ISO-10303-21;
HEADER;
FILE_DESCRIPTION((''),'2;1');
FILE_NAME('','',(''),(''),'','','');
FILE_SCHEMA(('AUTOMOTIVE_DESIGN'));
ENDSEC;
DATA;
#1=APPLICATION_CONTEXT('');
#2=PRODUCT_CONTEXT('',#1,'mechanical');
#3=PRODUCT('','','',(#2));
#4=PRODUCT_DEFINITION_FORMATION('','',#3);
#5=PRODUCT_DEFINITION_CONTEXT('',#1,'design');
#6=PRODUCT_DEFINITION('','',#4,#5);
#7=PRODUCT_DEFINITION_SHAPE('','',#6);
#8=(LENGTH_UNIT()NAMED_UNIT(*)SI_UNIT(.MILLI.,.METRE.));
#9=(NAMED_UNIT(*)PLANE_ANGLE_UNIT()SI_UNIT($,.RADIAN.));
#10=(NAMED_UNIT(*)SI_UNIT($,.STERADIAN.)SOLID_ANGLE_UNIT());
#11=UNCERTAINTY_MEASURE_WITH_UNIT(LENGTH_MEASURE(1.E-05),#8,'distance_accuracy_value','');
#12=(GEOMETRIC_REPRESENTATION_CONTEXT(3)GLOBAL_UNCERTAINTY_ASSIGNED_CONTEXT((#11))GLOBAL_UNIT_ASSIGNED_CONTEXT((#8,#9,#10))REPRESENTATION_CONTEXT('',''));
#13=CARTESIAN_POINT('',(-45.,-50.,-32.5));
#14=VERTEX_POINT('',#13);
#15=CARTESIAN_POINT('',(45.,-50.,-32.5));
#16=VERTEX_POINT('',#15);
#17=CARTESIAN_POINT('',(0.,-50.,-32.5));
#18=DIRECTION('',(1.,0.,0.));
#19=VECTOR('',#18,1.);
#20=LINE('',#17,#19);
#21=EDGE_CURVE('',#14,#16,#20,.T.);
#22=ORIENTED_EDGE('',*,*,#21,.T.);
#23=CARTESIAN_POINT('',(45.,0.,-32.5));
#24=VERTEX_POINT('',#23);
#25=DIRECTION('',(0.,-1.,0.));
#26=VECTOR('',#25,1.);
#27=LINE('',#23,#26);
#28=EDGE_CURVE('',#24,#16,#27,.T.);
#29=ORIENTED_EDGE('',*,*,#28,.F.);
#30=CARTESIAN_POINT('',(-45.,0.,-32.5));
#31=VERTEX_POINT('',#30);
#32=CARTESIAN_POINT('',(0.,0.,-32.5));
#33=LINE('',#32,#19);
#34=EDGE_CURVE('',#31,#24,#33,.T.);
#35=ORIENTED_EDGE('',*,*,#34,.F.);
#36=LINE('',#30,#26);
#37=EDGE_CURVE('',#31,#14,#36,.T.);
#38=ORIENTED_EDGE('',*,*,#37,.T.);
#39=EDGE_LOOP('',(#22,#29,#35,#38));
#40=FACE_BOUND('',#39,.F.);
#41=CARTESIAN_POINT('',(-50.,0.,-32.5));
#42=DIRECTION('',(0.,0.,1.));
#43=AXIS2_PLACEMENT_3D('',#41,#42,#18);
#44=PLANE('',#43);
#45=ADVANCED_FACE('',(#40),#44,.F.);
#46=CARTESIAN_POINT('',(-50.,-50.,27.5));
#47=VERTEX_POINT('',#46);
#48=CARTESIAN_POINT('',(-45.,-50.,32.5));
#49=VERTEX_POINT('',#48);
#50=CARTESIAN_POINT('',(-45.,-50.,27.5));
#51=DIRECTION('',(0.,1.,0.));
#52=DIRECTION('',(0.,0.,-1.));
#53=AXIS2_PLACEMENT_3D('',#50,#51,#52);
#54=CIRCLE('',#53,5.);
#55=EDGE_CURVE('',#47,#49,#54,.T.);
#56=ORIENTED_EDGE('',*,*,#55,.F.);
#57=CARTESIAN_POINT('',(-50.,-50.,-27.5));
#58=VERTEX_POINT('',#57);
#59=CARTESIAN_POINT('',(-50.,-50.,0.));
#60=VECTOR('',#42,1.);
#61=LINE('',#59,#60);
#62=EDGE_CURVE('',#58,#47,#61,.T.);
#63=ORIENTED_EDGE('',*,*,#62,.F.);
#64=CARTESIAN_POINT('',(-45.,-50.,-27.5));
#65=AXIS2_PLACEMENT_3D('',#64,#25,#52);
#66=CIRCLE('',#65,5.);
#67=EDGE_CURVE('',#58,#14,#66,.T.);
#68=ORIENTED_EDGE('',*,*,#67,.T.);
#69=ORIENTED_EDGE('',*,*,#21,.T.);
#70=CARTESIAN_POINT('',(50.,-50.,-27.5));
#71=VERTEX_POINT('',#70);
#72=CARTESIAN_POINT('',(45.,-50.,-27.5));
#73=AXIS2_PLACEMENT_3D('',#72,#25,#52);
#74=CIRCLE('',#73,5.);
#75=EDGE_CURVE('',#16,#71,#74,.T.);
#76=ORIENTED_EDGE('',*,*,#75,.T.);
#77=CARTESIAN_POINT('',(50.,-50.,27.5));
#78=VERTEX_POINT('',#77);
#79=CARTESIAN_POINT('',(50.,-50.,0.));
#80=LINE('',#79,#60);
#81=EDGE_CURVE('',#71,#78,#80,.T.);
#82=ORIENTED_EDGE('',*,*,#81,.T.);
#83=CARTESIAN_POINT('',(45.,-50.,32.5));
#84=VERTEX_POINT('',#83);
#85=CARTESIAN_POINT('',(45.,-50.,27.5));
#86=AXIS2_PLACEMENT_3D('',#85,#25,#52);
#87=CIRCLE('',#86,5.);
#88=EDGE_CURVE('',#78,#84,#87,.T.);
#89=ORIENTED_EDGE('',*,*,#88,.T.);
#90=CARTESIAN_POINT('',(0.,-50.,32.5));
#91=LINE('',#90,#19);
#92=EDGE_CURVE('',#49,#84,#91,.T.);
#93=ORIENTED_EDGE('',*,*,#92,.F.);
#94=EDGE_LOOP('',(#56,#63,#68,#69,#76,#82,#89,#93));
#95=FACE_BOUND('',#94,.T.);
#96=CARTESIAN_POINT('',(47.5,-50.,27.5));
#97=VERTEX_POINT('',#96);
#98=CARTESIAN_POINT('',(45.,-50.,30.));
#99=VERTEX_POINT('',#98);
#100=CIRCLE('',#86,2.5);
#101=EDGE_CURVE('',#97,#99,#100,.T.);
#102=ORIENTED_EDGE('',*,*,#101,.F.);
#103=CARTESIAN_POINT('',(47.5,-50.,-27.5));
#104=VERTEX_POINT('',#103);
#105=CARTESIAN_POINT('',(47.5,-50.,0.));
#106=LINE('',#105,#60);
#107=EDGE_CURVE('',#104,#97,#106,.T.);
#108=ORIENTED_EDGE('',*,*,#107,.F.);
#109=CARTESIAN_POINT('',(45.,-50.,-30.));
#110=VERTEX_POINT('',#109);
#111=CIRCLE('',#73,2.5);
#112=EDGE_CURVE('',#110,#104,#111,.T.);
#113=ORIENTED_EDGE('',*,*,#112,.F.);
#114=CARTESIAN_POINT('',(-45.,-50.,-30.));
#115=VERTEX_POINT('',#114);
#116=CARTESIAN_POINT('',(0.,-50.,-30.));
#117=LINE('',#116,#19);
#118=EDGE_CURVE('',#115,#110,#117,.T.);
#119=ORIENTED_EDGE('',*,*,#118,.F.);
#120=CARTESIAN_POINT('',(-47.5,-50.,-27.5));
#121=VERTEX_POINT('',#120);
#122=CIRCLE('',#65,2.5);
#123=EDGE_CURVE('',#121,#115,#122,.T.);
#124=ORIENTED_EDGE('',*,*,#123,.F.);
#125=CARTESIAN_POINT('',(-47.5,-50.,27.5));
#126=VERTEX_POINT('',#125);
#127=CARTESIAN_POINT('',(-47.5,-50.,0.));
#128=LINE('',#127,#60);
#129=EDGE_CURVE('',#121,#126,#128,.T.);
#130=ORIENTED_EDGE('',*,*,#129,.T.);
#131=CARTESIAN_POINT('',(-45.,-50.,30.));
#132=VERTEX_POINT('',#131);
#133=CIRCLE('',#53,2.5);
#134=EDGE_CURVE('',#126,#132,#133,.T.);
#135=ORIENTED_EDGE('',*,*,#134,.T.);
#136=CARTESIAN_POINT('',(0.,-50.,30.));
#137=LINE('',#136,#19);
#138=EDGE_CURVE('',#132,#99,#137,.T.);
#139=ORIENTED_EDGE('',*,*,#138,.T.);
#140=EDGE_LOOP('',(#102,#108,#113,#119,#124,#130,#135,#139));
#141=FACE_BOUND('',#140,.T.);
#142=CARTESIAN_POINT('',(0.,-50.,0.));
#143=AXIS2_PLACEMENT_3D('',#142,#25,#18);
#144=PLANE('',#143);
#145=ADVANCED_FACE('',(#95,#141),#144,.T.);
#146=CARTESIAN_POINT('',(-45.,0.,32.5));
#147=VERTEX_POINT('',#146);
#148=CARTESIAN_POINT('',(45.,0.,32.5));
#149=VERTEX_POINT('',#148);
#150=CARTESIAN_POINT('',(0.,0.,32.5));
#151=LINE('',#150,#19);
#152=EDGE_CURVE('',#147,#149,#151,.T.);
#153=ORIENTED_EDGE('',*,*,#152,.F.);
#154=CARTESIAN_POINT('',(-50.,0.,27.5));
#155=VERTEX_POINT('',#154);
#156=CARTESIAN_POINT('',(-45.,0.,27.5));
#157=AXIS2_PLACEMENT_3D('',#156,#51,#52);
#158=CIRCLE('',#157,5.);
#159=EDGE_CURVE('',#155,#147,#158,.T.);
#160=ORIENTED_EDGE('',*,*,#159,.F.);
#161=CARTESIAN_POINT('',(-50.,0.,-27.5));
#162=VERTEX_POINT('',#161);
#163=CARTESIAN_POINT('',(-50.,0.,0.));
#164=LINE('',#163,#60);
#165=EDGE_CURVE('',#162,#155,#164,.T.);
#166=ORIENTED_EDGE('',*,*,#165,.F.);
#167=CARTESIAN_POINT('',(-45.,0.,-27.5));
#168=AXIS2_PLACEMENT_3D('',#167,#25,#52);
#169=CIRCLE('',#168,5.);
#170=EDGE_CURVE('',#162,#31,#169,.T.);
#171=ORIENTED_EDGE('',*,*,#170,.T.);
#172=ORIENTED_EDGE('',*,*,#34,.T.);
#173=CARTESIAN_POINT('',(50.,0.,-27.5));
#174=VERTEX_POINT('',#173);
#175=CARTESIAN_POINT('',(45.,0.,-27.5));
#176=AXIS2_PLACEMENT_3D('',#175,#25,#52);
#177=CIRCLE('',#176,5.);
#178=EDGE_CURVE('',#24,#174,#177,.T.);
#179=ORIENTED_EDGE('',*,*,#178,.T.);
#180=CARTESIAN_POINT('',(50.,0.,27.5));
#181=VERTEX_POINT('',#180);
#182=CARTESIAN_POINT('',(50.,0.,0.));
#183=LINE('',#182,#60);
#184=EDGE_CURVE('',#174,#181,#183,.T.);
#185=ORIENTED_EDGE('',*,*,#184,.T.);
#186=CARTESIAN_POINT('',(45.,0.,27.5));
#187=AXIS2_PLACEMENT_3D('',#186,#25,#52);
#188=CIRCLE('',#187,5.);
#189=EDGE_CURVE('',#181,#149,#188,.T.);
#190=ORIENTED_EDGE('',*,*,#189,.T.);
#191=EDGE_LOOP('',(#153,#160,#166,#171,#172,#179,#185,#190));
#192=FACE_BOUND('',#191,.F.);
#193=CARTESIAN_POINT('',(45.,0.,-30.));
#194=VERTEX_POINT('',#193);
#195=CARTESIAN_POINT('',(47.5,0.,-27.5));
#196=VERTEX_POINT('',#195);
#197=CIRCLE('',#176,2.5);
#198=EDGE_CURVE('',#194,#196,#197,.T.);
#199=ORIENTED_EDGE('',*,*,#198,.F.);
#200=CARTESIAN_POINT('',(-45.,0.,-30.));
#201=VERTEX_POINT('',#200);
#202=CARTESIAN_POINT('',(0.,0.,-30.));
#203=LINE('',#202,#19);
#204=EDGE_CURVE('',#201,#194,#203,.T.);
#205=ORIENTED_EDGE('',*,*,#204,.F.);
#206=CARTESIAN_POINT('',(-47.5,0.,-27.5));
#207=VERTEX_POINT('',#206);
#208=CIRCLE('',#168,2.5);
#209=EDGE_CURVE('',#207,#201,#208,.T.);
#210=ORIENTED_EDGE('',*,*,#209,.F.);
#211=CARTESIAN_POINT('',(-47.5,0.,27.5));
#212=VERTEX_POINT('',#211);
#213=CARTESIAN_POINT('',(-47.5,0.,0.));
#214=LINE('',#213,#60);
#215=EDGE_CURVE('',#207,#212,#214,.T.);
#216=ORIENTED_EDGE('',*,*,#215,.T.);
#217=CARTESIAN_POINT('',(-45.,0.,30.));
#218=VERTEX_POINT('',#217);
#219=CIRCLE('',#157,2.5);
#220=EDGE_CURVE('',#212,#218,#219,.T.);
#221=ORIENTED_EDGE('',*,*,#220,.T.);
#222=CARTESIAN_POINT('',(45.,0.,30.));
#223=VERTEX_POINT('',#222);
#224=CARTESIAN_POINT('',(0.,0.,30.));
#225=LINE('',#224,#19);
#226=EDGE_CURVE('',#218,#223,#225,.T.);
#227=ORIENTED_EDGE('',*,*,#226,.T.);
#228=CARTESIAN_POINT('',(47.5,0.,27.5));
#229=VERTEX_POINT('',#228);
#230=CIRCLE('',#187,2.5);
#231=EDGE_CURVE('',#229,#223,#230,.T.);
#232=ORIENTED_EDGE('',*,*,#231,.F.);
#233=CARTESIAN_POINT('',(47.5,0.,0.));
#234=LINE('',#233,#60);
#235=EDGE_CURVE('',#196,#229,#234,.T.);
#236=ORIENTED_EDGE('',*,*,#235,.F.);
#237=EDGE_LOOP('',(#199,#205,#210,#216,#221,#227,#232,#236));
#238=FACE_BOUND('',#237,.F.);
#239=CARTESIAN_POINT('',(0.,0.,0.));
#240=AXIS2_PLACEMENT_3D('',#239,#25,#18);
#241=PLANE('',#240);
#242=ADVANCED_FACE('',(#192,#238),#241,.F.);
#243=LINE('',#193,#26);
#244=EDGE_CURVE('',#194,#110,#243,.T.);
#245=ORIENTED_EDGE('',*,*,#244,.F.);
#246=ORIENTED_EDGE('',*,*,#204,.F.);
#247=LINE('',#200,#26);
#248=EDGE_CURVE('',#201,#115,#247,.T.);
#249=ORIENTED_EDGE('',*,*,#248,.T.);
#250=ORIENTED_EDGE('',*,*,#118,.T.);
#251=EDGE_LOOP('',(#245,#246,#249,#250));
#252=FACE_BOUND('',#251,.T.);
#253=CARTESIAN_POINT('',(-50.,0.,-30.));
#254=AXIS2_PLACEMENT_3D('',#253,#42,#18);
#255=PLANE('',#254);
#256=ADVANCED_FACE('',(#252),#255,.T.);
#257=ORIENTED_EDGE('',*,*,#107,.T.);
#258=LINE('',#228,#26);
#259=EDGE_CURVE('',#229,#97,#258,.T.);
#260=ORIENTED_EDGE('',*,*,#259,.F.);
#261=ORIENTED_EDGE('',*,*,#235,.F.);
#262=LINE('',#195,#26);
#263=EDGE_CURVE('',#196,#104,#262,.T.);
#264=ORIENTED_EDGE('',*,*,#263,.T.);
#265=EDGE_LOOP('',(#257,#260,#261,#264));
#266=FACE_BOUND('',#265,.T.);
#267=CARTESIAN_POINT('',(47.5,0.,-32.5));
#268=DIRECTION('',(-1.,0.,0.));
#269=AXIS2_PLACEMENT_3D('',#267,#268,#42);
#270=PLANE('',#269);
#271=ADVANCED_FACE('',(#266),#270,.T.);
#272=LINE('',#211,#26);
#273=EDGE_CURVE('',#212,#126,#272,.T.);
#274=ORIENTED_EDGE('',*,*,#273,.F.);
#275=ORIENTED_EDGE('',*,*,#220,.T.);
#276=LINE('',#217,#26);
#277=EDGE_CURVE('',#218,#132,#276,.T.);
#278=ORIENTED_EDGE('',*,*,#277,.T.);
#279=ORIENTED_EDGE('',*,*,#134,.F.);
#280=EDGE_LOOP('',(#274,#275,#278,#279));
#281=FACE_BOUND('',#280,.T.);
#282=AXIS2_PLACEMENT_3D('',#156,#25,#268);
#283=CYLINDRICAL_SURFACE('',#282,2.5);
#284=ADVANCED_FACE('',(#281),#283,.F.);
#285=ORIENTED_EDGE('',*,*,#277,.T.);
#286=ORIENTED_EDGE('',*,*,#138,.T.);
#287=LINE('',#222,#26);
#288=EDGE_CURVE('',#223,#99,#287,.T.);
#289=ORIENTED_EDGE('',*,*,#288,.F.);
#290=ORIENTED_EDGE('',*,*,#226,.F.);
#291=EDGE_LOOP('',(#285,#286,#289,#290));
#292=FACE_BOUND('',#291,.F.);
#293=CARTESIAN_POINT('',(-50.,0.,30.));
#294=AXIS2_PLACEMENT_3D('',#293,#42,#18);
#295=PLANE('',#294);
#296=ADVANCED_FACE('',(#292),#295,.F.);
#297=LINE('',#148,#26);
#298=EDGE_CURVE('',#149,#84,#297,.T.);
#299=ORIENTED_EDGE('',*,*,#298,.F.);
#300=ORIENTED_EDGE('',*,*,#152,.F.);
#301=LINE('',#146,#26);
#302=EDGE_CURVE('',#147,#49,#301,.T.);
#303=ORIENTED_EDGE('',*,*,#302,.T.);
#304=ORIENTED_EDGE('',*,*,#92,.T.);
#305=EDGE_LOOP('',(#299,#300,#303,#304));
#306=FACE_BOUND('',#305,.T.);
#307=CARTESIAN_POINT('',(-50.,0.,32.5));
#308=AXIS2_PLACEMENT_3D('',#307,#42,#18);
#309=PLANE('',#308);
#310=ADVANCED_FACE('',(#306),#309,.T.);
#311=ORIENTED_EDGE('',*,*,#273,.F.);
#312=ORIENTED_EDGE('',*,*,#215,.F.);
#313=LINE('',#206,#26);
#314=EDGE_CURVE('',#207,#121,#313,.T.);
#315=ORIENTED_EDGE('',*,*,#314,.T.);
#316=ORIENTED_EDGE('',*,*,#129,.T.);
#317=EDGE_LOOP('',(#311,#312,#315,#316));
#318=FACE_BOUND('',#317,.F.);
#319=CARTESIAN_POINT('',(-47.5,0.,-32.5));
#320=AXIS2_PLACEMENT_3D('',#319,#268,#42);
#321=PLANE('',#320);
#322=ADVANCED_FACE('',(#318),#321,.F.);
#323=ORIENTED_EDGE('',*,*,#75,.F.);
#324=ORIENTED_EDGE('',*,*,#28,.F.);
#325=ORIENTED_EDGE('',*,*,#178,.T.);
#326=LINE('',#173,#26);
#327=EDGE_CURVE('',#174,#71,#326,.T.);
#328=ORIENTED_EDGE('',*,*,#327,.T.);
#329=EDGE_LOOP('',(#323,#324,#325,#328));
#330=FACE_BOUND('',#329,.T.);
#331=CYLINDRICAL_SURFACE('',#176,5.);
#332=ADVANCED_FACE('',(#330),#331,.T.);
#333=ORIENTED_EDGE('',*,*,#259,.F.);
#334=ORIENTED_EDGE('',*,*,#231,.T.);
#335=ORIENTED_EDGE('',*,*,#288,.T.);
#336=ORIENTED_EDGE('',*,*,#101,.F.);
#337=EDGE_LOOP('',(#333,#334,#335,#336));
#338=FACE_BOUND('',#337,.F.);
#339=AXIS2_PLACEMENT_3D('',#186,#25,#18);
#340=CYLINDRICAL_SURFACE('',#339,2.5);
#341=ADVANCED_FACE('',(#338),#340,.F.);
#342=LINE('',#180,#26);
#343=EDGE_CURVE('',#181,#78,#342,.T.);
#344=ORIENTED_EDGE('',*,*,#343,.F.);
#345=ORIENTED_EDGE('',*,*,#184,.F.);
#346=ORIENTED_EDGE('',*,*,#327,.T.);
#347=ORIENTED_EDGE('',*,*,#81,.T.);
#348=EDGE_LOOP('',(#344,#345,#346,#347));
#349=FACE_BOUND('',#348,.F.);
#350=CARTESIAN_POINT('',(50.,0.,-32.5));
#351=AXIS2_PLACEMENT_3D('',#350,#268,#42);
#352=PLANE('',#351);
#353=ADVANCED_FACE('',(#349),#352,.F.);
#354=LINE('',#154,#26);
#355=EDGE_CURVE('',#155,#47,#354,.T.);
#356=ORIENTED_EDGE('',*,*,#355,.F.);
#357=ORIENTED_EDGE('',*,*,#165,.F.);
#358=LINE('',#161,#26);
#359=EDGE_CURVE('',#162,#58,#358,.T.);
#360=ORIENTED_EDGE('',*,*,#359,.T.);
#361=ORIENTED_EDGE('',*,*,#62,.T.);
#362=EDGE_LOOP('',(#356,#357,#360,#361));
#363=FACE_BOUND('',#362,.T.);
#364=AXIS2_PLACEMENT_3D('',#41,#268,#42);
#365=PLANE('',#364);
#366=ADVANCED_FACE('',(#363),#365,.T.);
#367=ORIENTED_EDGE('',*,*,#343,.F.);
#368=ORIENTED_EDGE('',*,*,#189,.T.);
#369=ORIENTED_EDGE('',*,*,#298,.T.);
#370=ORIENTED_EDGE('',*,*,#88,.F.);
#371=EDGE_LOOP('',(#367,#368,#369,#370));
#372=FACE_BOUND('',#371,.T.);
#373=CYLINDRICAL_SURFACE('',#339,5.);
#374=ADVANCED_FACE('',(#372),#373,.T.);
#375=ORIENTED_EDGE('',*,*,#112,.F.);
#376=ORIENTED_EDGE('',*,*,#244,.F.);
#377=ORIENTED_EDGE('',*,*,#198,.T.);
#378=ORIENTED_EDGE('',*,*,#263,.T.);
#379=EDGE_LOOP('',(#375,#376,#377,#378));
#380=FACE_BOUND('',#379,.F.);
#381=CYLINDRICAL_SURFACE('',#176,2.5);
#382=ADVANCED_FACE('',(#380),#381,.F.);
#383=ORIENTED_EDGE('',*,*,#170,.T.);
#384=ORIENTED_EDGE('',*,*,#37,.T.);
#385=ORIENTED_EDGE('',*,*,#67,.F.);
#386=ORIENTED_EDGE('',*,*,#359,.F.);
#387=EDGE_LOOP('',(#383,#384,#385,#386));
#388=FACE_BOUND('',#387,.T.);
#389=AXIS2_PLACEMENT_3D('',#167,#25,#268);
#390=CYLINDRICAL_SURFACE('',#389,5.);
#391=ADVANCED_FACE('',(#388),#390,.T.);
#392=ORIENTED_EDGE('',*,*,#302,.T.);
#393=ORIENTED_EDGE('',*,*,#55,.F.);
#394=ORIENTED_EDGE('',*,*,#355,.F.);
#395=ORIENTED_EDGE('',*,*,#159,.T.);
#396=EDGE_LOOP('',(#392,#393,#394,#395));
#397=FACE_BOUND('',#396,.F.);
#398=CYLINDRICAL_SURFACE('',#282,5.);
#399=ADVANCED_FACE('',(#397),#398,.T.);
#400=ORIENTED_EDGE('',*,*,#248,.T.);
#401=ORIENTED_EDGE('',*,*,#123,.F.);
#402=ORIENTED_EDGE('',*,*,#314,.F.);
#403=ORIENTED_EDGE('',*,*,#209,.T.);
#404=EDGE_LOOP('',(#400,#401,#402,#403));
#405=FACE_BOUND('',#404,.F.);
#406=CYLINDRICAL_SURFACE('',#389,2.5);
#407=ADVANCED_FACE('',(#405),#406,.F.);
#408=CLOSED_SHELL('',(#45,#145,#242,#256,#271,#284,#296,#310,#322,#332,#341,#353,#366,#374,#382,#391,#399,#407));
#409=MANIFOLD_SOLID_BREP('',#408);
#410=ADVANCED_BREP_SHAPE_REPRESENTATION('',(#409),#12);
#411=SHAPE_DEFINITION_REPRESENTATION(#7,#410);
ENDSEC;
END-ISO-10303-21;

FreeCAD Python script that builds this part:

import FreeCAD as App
import Part
import Sketcher
from FreeCAD import Vector
Q = App.Units.Quantity


def edges_at(feature, points):
    """Names of the edges that pass closest to the given points."""
    edges = feature.Shape.Edges
    near = lambda p: min(range(len(edges)), key=lambda i: edges[i].distToShape(Part.Vertex(*p))[0])
    return sorted({f"Edge{near(p) + 1}" for p in points})


def faces_at(feature, points):
    """Names of the faces that lie closest to the given points."""
    faces = feature.Shape.Faces
    near = lambda p: min(range(len(faces)), key=lambda i: faces[i].distToShape(Part.Vertex(*p))[0])
    return sorted({f"Face{near(p) + 1}" for p in points})


def add_polygon(sketch, points):
    """Adds a closed chain of lines whose ends are joined by coincident constraints."""
    first, n = sketch.GeometryCount, len(points)
    for a, b in zip(points, points[1:] + points[:1]):
        sketch.addGeometry(Part.LineSegment(App.Vector(*a, 0), App.Vector(*b, 0)), False)
    for i in range(n):
        sketch.addConstraint(Sketcher.Constraint("Coincident", first + i, 2, first + (i + 1) % n, 1))

doc = App.newDocument("Part")
body = doc.addObject("PartDesign::Body", "Body")

# Sketch on XZ plane
sketch1 = doc.addObject("Sketcher::SketchObject", "Sketch")
body.addObject(sketch1)
sketch1.AttachmentSupport = (doc.XZ_Plane, [""])
sketch1.MapMode = "FlatFace"
add_polygon(sketch1, [(-50, 32.5), (-50, -32.5), (50, -32.5), (50, 32.5)])  # lines 0-3
sketch1.addConstraint(Sketcher.Constraint("Vertical", 0))
sketch1.addConstraint(Sketcher.Constraint("Horizontal", 1))
sketch1.addConstraint(Sketcher.Constraint("Vertical", 2))
sketch1.addConstraint(Sketcher.Constraint("Horizontal", 3))
sketch1.addConstraint(Sketcher.Constraint("Symmetric", 0, 2, 2, 2, -1, 1))
sketch1.addConstraint(Sketcher.Constraint("DistanceX", 1, 1, 1, 2, Q("100 mm")))
sketch1.addConstraint(Sketcher.Constraint("DistanceY", 0, 2, 0, 1, Q("65 mm")))
pad1 = doc.addObject("PartDesign::Pad", "Pad")
body.addObject(pad1)
pad1.Profile = sketch1
pad1.Length = 50
doc.recompute()

fillet = doc.addObject("PartDesign::Fillet", "Fillet")
body.addObject(fillet)
fillet.Base = (pad1, edges_at(pad1, [
    (-50, -25, 32.5),
    (-50, -25, -32.5),
    (50, -25, 32.5),
    (50, -25, -32.5),
]))
fillet.Radius = 5
doc.recompute()

thickness = doc.addObject("PartDesign::Thickness", "Thickness")
body.addObject(thickness)
thickness.Base = (fillet, faces_at(fillet, [(0, -50, 0), (0, 0, 0)]))
thickness.Value = 2.5
thickness.Reversed = True
thickness.Join = "Arc"

doc.recompute()
